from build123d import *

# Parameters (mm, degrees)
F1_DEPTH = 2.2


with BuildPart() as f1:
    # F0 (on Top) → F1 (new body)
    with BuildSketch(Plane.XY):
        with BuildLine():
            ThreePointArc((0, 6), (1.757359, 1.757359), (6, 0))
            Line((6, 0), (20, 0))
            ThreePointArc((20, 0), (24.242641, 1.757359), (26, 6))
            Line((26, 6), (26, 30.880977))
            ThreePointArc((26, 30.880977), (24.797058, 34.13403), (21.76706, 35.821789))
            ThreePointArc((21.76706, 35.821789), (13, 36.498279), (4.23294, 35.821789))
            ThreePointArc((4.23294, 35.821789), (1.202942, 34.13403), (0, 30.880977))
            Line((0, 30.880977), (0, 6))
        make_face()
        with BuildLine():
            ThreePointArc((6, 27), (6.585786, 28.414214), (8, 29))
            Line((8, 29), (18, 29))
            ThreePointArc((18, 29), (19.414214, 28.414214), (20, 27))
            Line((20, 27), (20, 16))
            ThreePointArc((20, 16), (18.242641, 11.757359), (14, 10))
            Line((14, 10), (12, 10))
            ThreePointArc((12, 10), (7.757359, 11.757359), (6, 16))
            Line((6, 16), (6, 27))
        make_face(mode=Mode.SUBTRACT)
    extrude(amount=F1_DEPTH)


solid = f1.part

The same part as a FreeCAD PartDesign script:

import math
import FreeCAD as App
import Part
import Sketcher
Q = App.Units.Quantity

doc = App.newDocument("Part")
body = doc.addObject("PartDesign::Body", "Body")

sketch1 = doc.addObject("Sketcher::SketchObject", "Sketch")
body.addObject(sketch1)
sketch1.AttachmentSupport = (doc.XY_Plane, [""])
sketch1.MapMode = "FlatFace"
sketch1.addGeometry([
    Part.ArcOfCircle(Part.Circle(App.Vector(6, 6, 0), App.Vector(0, 0, 1), 6), math.radians(180), math.radians(270)),
    Part.LineSegment(App.Vector(6, 0, 0), App.Vector(20, 0, 0)),
    Part.ArcOfCircle(Part.Circle(App.Vector(20, 6, 0), App.Vector(0, 0, 1), 6), math.radians(-90), math.radians(0)),
    Part.LineSegment(App.Vector(26, 6, 0), App.Vector(26, 30.9, 0)),
    Part.ArcOfCircle(Part.Circle(App.Vector(21, 30.9, 0), App.Vector(0, 0, 1), 5), math.radians(0), math.radians(81)),
    Part.ArcOfCircle(Part.Circle(App.Vector(13, -20.6, 0), App.Vector(0, 0, 1), 57.1), math.radians(81.18), math.radians(98.82)),
    Part.ArcOfCircle(Part.Circle(App.Vector(5, 30.9, 0), App.Vector(0, 0, 1), 5), math.radians(99), math.radians(180)),
    Part.LineSegment(App.Vector(0, 30.9, 0), App.Vector(0, 6, 0)),
    Part.LineSegment(App.Vector(6, 16, 0), App.Vector(6, 27, 0)),
    Part.ArcOfCircle(Part.Circle(App.Vector(8, 27, 0), App.Vector(0, 0, 1), 2), math.radians(90), math.radians(180)),
    Part.LineSegment(App.Vector(8, 29, 0), App.Vector(18, 29, 0)),
    Part.ArcOfCircle(Part.Circle(App.Vector(18, 27, 0), App.Vector(0, 0, 1), 2), math.radians(0), math.radians(90)),
    Part.LineSegment(App.Vector(20, 27, 0), App.Vector(20, 16, 0)),
    Part.ArcOfCircle(Part.Circle(App.Vector(14, 16, 0), App.Vector(0, 0, 1), 6), math.radians(-90), math.radians(0)),
    Part.LineSegment(App.Vector(14, 10, 0), App.Vector(12, 10, 0)),
    Part.ArcOfCircle(Part.Circle(App.Vector(12, 16, 0), App.Vector(0, 0, 1), 6), math.radians(180), math.radians(270)),
], False)
sketch1.addConstraint([
    Sketcher.Constraint("Tangent", 0, 2, 1, 1),
    Sketcher.Constraint("Tangent", 1, 2, 2, 1),
    Sketcher.Constraint("Tangent", 2, 2, 3, 1),
    Sketcher.Constraint("Tangent", 3, 2, 4, 1),
    Sketcher.Constraint("Tangent", 4, 2, 5, 1),
    Sketcher.Constraint("Tangent", 5, 2, 6, 1),
    Sketcher.Constraint("Tangent", 6, 2, 7, 1),
    Sketcher.Constraint("Tangent", 7, 2, 0, 1),
    Sketcher.Constraint("Tangent", 8, 2, 9, 2),
    Sketcher.Constraint("Tangent", 9, 1, 10, 1),
    Sketcher.Constraint("Tangent", 10, 2, 11, 2),
    Sketcher.Constraint("Tangent", 11, 1, 12, 1),
    Sketcher.Constraint("Tangent", 12, 2, 13, 2),
    Sketcher.Constraint("Tangent", 13, 1, 14, 1),
    Sketcher.Constraint("Tangent", 14, 2, 15, 2),
    Sketcher.Constraint("Tangent", 15, 1, 8, 1),
    Sketcher.Constraint("Horizontal", 1),
    Sketcher.Constraint("Vertical", 3),
    Sketcher.Constraint("Vertical", 7),
    Sketcher.Constraint("Vertical", 8),
    Sketcher.Constraint("Horizontal", 10),
    Sketcher.Constraint("Vertical", 12),
    Sketcher.Constraint("Horizontal", 14),
    Sketcher.Constraint("Equal", 0, 2),
    Sketcher.Constraint("Equal", 4, 6),
    Sketcher.Constraint("Equal", 9, 11),
    Sketcher.Constraint("Equal", 2, 13),
    Sketcher.Constraint("Equal", 13, 15),
    Sketcher.Constraint("PointOnObject", 0, 2, -1),
    Sketcher.Constraint("PointOnObject", 6, 2, -2),
    Sketcher.Constraint("Horizontal", 4, 3, 6, 3),
    Sketcher.Constraint("Vertical", 0, 2, 8, 2),
    Sketcher.Constraint("Vertical", 1, 2, 11, 1),
    Sketcher.Constraint("Radius", 0, Q("5.999999 mm")),
    Sketcher.Constraint("Radius", 4, Q("5 mm")),
    Sketcher.Constraint("Radius", 9, Q("1.999999 mm")),
    Sketcher.Constraint("DistanceX", 1, 1, 1, 2, Q("14 mm")),
    Sketcher.Constraint("DistanceY", 8, 1, 8, 2, Q("11 mm")),
    Sketcher.Constraint("DistanceY", -1, 1, 9, 3, Q("27.000001 mm")),
    Sketcher.Constraint("Radius", 5, Q("57.147171 mm")),
    Sketcher.Constraint("DistanceY", 3, 1, 3, 2, Q("24.880977 mm")),
])
pad1 = doc.addObject("PartDesign::Pad", "Pad")
body.addObject(pad1)
pad1.Profile = sketch1
pad1.Length = 2.2

doc.recompute()
